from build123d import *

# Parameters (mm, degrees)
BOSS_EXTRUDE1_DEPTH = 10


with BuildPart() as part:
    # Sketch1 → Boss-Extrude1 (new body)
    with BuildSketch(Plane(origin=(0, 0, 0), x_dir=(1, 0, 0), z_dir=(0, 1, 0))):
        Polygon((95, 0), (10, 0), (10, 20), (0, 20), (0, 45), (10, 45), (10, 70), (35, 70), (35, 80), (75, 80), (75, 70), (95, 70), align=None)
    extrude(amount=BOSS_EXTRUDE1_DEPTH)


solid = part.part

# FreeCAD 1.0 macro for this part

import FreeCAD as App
import Part
import Sketcher

V = App.Vector

doc = App.newDocument("Part")
body = doc.addObject("PartDesign::Body", "Body")

# Sketch on XZ plane
sketch1 = doc.addObject("Sketcher::SketchObject", "Sketch")
body.addObject(sketch1)
sketch1.AttachmentSupport = (doc.XZ_Plane, [""])
sketch1.MapMode = "FlatFace"
sketch1.addGeometry([
    Part.LineSegment(V(10, 0, 0), V(95, 0, 0)),  # 0
    Part.LineSegment(V(95, 0, 0), V(95, -70, 0)),  # 1
    Part.LineSegment(V(95, -70, 0), V(75, -70, 0)),  # 2
    Part.LineSegment(V(75, -70, 0), V(75, -80, 0)),  # 3
    Part.LineSegment(V(75, -80, 0), V(35, -80, 0)),  # 4
    Part.LineSegment(V(35, -80, 0), V(35, -70, 0)),  # 5
    Part.LineSegment(V(35, -70, 0), V(10, -70, 0)),  # 6
    Part.LineSegment(V(10, -70, 0), V(10, -45, 0)),  # 7
    Part.LineSegment(V(10, -45, 0), V(0, -45, 0)),  # 8
    Part.LineSegment(V(0, -45, 0), V(0, -20, 0)),  # 9
    Part.LineSegment(V(0, -20, 0), V(10, -20, 0)),  # 10
    Part.LineSegment(V(10, -20, 0), V(10, 0, 0)),  # 11
], False)
sketch1.addConstraint([
    Sketcher.Constraint("Coincident", 0, 2, 1, 1),
    Sketcher.Constraint("Coincident", 1, 2, 2, 1),
    Sketcher.Constraint("Coincident", 2, 2, 3, 1),
    Sketcher.Constraint("Coincident", 3, 2, 4, 1),
    Sketcher.Constraint("Coincident", 4, 2, 5, 1),
    Sketcher.Constraint("Coincident", 5, 2, 6, 1),
    Sketcher.Constraint("Coincident", 6, 2, 7, 1),
    Sketcher.Constraint("Coincident", 7, 2, 8, 1),
    Sketcher.Constraint("Coincident", 8, 2, 9, 1),
    Sketcher.Constraint("Coincident", 9, 2, 10, 1),
    Sketcher.Constraint("Coincident", 10, 2, 11, 1),
    Sketcher.Constraint("Coincident", 11, 2, 0, 1),
    Sketcher.Constraint("Horizontal", 0),
    Sketcher.Constraint("Vertical", 1),
    Sketcher.Constraint("Horizontal", 2),
    Sketcher.Constraint("Vertical", 3),
    Sketcher.Constraint("Horizontal", 4),
    Sketcher.Constraint("Vertical", 5),
    Sketcher.Constraint("Horizontal", 6),
    Sketcher.Constraint("Vertical", 7),
    Sketcher.Constraint("Horizontal", 8),
    Sketcher.Constraint("Vertical", 9),
    Sketcher.Constraint("Horizontal", 10),
    Sketcher.Constraint("Vertical", 11),
    Sketcher.Constraint("PointOnObject", 0, 2, -1),
    Sketcher.Constraint("PointOnObject", 8, 2, -2),
    Sketcher.Constraint("Horizontal", 2, 2, 5, 2),
    Sketcher.Constraint("Vertical", 7, 2, 10, 2),
    Sketcher.Constraint("Equal", 10, 3),
    Sketcher.Constraint("Equal", 6, 7),
    Sketcher.Constraint("Equal", 7, 9),
    Sketcher.Constraint("Equal", 2, 11),
    Sketcher.Constraint("DistanceX", 0, 1, 0, 2, 85.0),
    Sketcher.Constraint("DistanceX", 2, 2, 2, 1, 20.0),
    Sketcher.Constraint("DistanceX", 4, 2, 4, 1, 40.0),
    Sketcher.Constraint("DistanceX", 8, 2, 8, 1, 10.0),
])
pad1 = doc.addObject("PartDesign::Pad", "Pad")
body.addObject(pad1)
pad1.Profile = sketch1
pad1.Length = 10
pad1.Reversed = True

doc.recompute()
